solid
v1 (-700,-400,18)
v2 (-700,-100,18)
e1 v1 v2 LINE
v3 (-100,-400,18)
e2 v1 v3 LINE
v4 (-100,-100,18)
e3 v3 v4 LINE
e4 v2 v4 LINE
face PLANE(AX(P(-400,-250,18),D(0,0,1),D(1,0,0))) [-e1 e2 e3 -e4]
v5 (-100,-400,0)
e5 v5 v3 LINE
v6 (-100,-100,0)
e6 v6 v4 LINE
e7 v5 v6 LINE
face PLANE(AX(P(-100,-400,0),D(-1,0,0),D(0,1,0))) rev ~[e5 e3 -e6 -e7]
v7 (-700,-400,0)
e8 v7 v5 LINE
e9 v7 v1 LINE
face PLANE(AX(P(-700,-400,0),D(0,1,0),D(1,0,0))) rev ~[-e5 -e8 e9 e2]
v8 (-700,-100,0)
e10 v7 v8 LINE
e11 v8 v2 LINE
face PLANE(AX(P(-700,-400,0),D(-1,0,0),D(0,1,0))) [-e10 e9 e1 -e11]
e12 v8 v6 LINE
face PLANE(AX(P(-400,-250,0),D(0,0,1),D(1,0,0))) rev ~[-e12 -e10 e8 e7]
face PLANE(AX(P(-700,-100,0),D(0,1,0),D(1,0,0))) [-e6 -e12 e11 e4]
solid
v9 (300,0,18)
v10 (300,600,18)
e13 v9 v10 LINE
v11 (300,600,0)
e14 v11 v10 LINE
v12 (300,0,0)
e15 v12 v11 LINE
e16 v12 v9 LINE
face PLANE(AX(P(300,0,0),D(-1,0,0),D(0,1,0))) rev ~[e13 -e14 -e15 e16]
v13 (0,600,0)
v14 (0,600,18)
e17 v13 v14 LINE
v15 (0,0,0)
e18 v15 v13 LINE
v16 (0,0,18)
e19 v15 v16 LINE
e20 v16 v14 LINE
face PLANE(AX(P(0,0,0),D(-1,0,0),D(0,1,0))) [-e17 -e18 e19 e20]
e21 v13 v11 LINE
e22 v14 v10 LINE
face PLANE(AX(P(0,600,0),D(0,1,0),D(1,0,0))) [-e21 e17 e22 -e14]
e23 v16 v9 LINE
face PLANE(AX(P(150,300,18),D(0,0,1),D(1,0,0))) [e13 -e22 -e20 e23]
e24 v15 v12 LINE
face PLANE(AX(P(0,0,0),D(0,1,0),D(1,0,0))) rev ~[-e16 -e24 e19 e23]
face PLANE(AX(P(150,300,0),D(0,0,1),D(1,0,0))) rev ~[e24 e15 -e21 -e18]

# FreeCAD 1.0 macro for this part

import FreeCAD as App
import Part
import Sketcher

doc = App.newDocument("Part")
body = doc.addObject("PartDesign::Body", "Body")

sketch1 = body.newObject("Sketcher::SketchObject", "Sketch")
sketch1.AttachmentSupport = (doc.getObject("XY_Plane"), [""])
sketch1.MapMode = "FlatFace"
sketch1.addGeometry([
    Part.LineSegment(App.Vector(0, 600, 0), App.Vector(0, 0, 0)),
    Part.LineSegment(App.Vector(0, 0, 0), App.Vector(300, 0, 0)),
    Part.LineSegment(App.Vector(300, 0, 0), App.Vector(300, 600, 0)),
    Part.LineSegment(App.Vector(300, 600, 0), App.Vector(0, 600, 0)),
], False)
sketch1.addConstraint([
    Sketcher.Constraint("Coincident", 0, 2, 1, 1),
    Sketcher.Constraint("Coincident", 1, 2, 2, 1),
    Sketcher.Constraint("Coincident", 2, 2, 3, 1),
    Sketcher.Constraint("Coincident", 3, 2, 0, 1),
    Sketcher.Constraint("Vertical", 0),
    Sketcher.Constraint("Horizontal", 1),
    Sketcher.Constraint("Vertical", 2),
    Sketcher.Constraint("Horizontal", 3),
    Sketcher.Constraint("Coincident", 0, 2, -1, 1),
    Sketcher.Constraint("DistanceX", 1, 1, 1, 2, 300.0),
    Sketcher.Constraint("DistanceY", 0, 2, 0, 1, 600.0),
])
pad1 = body.newObject("PartDesign::Pad", "Pad")
pad1.Profile = sketch1
pad1.Length = 18
body2 = doc.addObject("PartDesign::Body", "Body001")

sketch2 = body2.newObject("Sketcher::SketchObject", "Sketch001")
sketch2.AttachmentSupport = (doc.getObject("XY_Plane001"), [""])
sketch2.MapMode = "FlatFace"
sketch2.addGeometry([
    Part.LineSegment(App.Vector(-700, -100, 0), App.Vector(-700, -400, 0)),
    Part.LineSegment(App.Vector(-700, -400, 0), App.Vector(-100, -400, 0)),
    Part.LineSegment(App.Vector(-100, -400, 0), App.Vector(-100, -100, 0)),
    Part.LineSegment(App.Vector(-100, -100, 0), App.Vector(-700, -100, 0)),
], False)
sketch2.addConstraint([
    Sketcher.Constraint("Coincident", 0, 2, 1, 1),
    Sketcher.Constraint("Coincident", 1, 2, 2, 1),
    Sketcher.Constraint("Coincident", 2, 2, 3, 1),
    Sketcher.Constraint("Coincident", 3, 2, 0, 1),
    Sketcher.Constraint("Vertical", 0),
    Sketcher.Constraint("Horizontal", 1),
    Sketcher.Constraint("Vertical", 2),
    Sketcher.Constraint("Horizontal", 3),
    Sketcher.Constraint("DistanceX", 1, 1, 1, 2, 600.0),
    Sketcher.Constraint("DistanceY", 0, 2, 0, 1, 300.0),
    Sketcher.Constraint("DistanceX", 0, 2, -1, 1, 700.0),
    Sketcher.Constraint("DistanceY", 0, 2, -1, 1, 400.0),
])
pad2 = body2.newObject("PartDesign::Pad", "Pad001")
pad2.Profile = sketch2
pad2.Length = 18

doc.recompute()
